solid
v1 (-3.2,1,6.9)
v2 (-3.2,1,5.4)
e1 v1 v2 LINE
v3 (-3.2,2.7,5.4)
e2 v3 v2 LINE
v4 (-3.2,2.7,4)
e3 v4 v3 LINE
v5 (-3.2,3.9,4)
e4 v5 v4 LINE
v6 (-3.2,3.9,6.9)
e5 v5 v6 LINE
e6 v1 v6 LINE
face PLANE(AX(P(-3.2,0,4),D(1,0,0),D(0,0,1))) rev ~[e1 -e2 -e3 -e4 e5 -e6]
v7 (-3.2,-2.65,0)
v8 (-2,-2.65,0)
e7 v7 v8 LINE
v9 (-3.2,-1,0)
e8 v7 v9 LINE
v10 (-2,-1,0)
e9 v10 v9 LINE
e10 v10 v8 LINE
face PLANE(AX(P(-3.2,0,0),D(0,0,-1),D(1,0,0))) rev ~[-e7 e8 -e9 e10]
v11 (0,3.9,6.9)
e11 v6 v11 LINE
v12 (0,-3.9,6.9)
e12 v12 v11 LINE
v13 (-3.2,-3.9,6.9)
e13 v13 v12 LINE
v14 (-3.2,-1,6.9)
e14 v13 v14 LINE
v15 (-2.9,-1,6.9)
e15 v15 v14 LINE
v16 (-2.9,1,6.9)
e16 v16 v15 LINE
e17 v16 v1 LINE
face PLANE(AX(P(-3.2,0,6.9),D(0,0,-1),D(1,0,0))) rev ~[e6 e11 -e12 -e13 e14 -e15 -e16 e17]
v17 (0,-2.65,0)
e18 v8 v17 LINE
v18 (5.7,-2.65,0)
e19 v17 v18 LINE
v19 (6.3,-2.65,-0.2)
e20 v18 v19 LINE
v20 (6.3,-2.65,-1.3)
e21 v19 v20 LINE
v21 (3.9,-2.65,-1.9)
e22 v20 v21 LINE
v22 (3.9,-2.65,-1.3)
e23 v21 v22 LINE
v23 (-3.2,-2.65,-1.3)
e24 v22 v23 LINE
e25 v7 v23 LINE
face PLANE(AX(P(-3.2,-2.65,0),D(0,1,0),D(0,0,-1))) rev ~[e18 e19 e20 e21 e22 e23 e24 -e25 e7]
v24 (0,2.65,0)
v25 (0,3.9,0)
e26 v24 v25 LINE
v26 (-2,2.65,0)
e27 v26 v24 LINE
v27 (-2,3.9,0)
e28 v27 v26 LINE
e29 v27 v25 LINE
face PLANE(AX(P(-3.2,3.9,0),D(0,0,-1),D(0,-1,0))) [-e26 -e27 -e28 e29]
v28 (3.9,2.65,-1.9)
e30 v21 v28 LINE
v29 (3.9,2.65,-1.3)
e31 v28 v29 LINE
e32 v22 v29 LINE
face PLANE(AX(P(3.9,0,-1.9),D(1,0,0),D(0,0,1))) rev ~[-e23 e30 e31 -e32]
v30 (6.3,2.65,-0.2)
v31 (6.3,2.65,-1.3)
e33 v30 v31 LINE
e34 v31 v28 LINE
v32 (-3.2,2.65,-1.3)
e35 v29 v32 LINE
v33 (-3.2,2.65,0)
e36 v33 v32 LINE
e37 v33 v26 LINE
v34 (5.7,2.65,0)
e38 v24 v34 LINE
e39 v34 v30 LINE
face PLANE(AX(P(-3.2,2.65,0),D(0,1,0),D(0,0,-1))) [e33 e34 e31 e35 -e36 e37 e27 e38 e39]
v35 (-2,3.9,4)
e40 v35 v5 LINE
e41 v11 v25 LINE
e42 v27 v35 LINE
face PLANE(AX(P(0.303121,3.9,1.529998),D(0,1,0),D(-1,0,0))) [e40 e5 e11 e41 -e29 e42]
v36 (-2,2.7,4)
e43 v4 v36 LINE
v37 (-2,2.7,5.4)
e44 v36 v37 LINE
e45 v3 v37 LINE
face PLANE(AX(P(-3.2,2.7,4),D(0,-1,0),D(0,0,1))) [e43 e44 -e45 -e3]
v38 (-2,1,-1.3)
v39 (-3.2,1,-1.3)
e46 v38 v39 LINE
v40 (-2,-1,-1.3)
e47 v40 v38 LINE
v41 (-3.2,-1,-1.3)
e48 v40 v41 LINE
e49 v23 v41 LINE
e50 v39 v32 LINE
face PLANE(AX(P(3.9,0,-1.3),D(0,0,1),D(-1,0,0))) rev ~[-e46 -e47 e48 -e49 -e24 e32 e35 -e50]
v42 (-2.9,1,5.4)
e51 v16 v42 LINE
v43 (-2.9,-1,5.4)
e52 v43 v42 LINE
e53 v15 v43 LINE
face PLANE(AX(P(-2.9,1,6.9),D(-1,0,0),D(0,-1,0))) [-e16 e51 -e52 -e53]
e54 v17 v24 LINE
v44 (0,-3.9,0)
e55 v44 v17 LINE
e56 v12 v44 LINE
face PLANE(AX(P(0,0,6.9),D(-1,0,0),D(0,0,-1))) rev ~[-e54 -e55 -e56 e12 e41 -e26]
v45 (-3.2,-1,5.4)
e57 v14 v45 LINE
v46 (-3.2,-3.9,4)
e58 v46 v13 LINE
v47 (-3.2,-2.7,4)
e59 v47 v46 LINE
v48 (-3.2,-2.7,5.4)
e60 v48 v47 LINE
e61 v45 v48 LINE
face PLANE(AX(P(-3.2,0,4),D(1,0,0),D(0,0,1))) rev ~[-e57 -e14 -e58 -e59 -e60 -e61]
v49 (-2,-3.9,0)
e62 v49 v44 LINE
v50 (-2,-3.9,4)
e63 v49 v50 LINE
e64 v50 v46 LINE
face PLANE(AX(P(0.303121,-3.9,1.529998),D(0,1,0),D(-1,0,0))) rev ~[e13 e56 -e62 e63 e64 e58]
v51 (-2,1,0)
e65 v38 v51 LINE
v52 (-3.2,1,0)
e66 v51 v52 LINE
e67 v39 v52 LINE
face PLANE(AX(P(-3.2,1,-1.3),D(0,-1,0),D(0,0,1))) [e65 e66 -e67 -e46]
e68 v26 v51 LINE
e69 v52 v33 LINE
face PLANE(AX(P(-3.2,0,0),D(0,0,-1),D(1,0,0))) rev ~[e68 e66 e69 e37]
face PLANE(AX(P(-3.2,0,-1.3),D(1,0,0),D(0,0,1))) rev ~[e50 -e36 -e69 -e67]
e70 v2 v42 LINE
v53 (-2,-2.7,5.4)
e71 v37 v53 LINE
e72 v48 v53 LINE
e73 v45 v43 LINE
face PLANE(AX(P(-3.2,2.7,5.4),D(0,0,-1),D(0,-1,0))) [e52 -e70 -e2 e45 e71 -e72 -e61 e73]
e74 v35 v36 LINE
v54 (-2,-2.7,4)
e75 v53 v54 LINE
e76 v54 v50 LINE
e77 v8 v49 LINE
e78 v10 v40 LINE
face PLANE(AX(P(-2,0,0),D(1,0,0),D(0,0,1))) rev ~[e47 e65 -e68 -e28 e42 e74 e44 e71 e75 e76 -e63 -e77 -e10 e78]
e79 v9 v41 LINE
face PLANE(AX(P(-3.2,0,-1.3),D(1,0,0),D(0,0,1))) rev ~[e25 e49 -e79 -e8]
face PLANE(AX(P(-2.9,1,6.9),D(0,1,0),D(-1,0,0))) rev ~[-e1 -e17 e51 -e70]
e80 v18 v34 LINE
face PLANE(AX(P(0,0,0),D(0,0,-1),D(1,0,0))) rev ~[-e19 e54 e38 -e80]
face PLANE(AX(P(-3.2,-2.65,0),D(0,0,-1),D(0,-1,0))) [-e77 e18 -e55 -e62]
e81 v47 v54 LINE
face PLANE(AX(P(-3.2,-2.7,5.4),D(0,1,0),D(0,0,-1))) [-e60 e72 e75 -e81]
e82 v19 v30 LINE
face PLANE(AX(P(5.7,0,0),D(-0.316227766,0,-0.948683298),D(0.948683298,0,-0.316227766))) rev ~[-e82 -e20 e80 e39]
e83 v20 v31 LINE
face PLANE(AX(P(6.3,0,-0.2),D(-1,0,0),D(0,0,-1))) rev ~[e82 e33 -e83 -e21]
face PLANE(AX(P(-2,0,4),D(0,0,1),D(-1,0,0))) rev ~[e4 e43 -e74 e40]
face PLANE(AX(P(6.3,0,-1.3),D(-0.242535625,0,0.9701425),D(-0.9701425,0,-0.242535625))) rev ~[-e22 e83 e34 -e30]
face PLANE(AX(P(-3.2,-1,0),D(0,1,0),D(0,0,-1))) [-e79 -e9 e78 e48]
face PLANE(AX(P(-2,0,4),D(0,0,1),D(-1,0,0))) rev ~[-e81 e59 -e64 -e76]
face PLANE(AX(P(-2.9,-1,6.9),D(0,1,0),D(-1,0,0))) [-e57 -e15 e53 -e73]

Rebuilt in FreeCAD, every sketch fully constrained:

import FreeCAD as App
import Part
import Sketcher
from FreeCAD import Vector
Q = App.Units.Quantity

doc = App.newDocument("Part")
body = doc.addObject("PartDesign::Body", "Body")

# Sketch on XZ plane
sketch1 = doc.addObject("Sketcher::SketchObject", "Sketch")
body.addObject(sketch1)
sketch1.AttachmentSupport = (doc.XZ_Plane, [""])
sketch1.MapMode = "FlatFace"
sketch1.addGeometry([
    Part.LineSegment(Vector(-3.2, 6.9, 0), Vector(-3.2, 4, 0)),  # 0
    Part.LineSegment(Vector(-3.2, 4, 0), Vector(-2, 4, 0)),  # 1
    Part.LineSegment(Vector(-2, 4, 0), Vector(-2, 0, 0)),  # 2
    Part.LineSegment(Vector(-2, 0, 0), Vector(-3.2, 0, 0)),  # 3
    Part.LineSegment(Vector(-3.2, 0, 0), Vector(-3.2, -1.3, 0)),  # 4
    Part.LineSegment(Vector(-3.2, -1.3, 0), Vector(3.9, -1.3, 0)),  # 5
    Part.LineSegment(Vector(3.9, -1.3, 0), Vector(3.9, -1.9, 0)),  # 6
    Part.LineSegment(Vector(3.9, -1.9, 0), Vector(6.3, -1.3, 0)),  # 7
    Part.LineSegment(Vector(6.3, -1.3, 0), Vector(6.3, -0.2, 0)),  # 8
    Part.LineSegment(Vector(6.3, -0.2, 0), Vector(5.7, 0, 0)),  # 9
    Part.LineSegment(Vector(5.7, 0, 0), Vector(0, 0, 0)),  # 10
    Part.LineSegment(Vector(0, 0, 0), Vector(0, 6.9, 0)),  # 11
    Part.LineSegment(Vector(0, 6.9, 0), Vector(-3.2, 6.9, 0)),  # 12
], False)
sketch1.addConstraint([
    Sketcher.Constraint("Coincident", 0, 2, 1, 1),
    Sketcher.Constraint("Coincident", 1, 2, 2, 1),
    Sketcher.Constraint("Coincident", 2, 2, 3, 1),
    Sketcher.Constraint("Coincident", 3, 2, 4, 1),
    Sketcher.Constraint("Coincident", 4, 2, 5, 1),
    Sketcher.Constraint("Coincident", 5, 2, 6, 1),
    Sketcher.Constraint("Coincident", 6, 2, 7, 1),
    Sketcher.Constraint("Coincident", 7, 2, 8, 1),
    Sketcher.Constraint("Coincident", 8, 2, 9, 1),
    Sketcher.Constraint("Coincident", 9, 2, 10, 1),
    Sketcher.Constraint("Coincident", 10, 2, 11, 1),
    Sketcher.Constraint("Coincident", 11, 2, 12, 1),
    Sketcher.Constraint("Coincident", 12, 2, 0, 1),
    Sketcher.Constraint("Vertical", 0),
    Sketcher.Constraint("Horizontal", 1),
    Sketcher.Constraint("Vertical", 2),
    Sketcher.Constraint("Horizontal", 3),
    Sketcher.Constraint("Vertical", 4),
    Sketcher.Constraint("Horizontal", 5),
    Sketcher.Constraint("Vertical", 6),
    Sketcher.Constraint("Vertical", 8),
    Sketcher.Constraint("Horizontal", 10),
    Sketcher.Constraint("Vertical", 11),
    Sketcher.Constraint("Horizontal", 12),
    Sketcher.Constraint("Coincident", 10, 2, -1, 1),
    Sketcher.Constraint("PointOnObject", 2, 2, -1),
    Sketcher.Constraint("Horizontal", 5, 2, 7, 2),
    Sketcher.Constraint("Vertical", 0, 2, 3, 2),
    Sketcher.Constraint("DistanceY", 2, 2, 2, 1, Q("4 mm")),
    Sketcher.Constraint("DistanceX", 1, 1, 1, 2, Q("1.2 mm")),
    Sketcher.Constraint("DistanceX", 5, 1, 5, 2, Q("7.1 mm")),
    Sketcher.Constraint("DistanceX", 10, 2, 10, 1, Q("5.7 mm")),
    Sketcher.Constraint("DistanceX", 12, 2, 12, 1, Q("3.2 mm")),
    Sketcher.Constraint("DistanceY", 0, 2, 0, 1, Q("2.9 mm")),
    Sketcher.Constraint("DistanceY", 4, 2, 4, 1, Q("1.3 mm")),
    Sketcher.Constraint("DistanceY", 6, 2, 6, 1, Q("0.6 mm")),
    Sketcher.Constraint("DistanceY", 8, 1, 8, 2, Q("1.1 mm")),
    Sketcher.Constraint("DistanceX", -1, 1, 7, 2, Q("6.3 mm")),
])
pad1 = doc.addObject("PartDesign::Pad", "Pad")
body.addObject(pad1)
pad1.Profile = sketch1
pad1.Length = 7.8
pad1.Midplane = True

# Sketch on YZ plane
sketch2 = doc.addObject("Sketcher::SketchObject", "Sketch001")
body.addObject(sketch2)
sketch2.AttachmentSupport = (doc.YZ_Plane, [""])
sketch2.MapMode = "FlatFace"
sketch2.AttachmentOffset = App.Placement(Vector(0, 0, -3.2), App.Rotation())
sketch2.addGeometry([
    Part.LineSegment(Vector(-3.9, 0, 0), Vector(-2.6, 0, 0)),  # 0
    Part.LineSegment(Vector(-2.6, 0, 0), Vector(-2.6, -2.4, 0)),  # 1
    Part.LineSegment(Vector(-2.6, -2.4, 0), Vector(-3.9, -2.4, 0)),  # 2
    Part.LineSegment(Vector(-3.9, -2.4, 0), Vector(-3.9, 0, 0)),  # 3
    Part.LineSegment(Vector(2.6, 0, 0), Vector(3.9, 0, 0)),  # 4
    Part.LineSegment(Vector(3.9, 0, 0), Vector(3.9, -2.4, 0)),  # 5
    Part.LineSegment(Vector(3.9, -2.4, 0), Vector(2.6, -2.4, 0)),  # 6
    Part.LineSegment(Vector(2.6, -2.4, 0), Vector(2.6, 0, 0)),  # 7
], False)
sketch2.addConstraint([
    Sketcher.Constraint("Coincident", 0, 2, 1, 1),
    Sketcher.Constraint("Coincident", 1, 2, 2, 1),
    Sketcher.Constraint("Coincident", 2, 2, 3, 1),
    Sketcher.Constraint("Coincident", 3, 2, 0, 1),
    Sketcher.Constraint("Coincident", 4, 2, 5, 1),
    Sketcher.Constraint("Coincident", 5, 2, 6, 1),
    Sketcher.Constraint("Coincident", 6, 2, 7, 1),
    Sketcher.Constraint("Coincident", 7, 2, 4, 1),
    Sketcher.Constraint("Horizontal", 0),
    Sketcher.Constraint("Vertical", 1),
    Sketcher.Constraint("Horizontal", 2),
    Sketcher.Constraint("Vertical", 3),
    Sketcher.Constraint("Horizontal", 4),
    Sketcher.Constraint("Vertical", 5),
    Sketcher.Constraint("Horizontal", 6),
    Sketcher.Constraint("Vertical", 7),
    Sketcher.Constraint("Symmetric", 3, 2, 4, 2, -1, 1),
    Sketcher.Constraint("Symmetric", 1, 2, 6, 2, -2),
    Sketcher.Constraint("PointOnObject", 0, 2, -1),
    Sketcher.Constraint("DistanceY", 1, 2, 1, 1, Q("2.4 mm")),
    Sketcher.Constraint("DistanceX", 0, 1, 0, 2, Q("1.25 mm")),
    Sketcher.Constraint("DistanceX", 2, 2, -1, 1, Q("3.9 mm")),
])
pocket1 = doc.addObject("PartDesign::Pocket", "Pocket")
body.addObject(pocket1)
pocket1.Profile = sketch2
pocket1.Type = "ThroughAll"
pocket1.Reversed = True

# Sketch on YZ plane
sketch3 = doc.addObject("Sketcher::SketchObject", "Sketch002")
body.addObject(sketch3)
sketch3.AttachmentSupport = (doc.YZ_Plane, [""])
sketch3.MapMode = "FlatFace"
sketch3.AttachmentOffset = App.Placement(Vector(0, 0, -3.2), App.Rotation())
sketch3.addGeometry([
    Part.LineSegment(Vector(-2.7, 4, 0), Vector(-2.7, 5.4, 0)),  # 0
    Part.LineSegment(Vector(-2.7, 5.4, 0), Vector(2.7, 5.4, 0)),  # 1
    Part.LineSegment(Vector(2.7, 5.4, 0), Vector(2.7, 4, 0)),  # 2
    Part.LineSegment(Vector(2.7, 4, 0), Vector(4.9, 4, 0)),  # 3
    Part.LineSegment(Vector(4.9, 4, 0), Vector(4.9, 0, 0)),  # 4
    Part.LineSegment(Vector(4.9, 0, 0), Vector(1, 0, 0)),  # 5
    Part.LineSegment(Vector(1, 0, 0), Vector(1, -1.3, 0)),  # 6
    Part.LineSegment(Vector(1, -1.3, 0), Vector(-1, -1.3, 0)),  # 7
    Part.LineSegment(Vector(-1, -1.3, 0), Vector(-1, 0, 0)),  # 8
    Part.LineSegment(Vector(-1, 0, 0), Vector(-4.9, 0, 0)),  # 9
    Part.LineSegment(Vector(-4.9, 0, 0), Vector(-4.9, 4, 0)),  # 10
    Part.LineSegment(Vector(-4.9, 4, 0), Vector(-2.7, 4, 0)),  # 11
], False)
sketch3.addConstraint([
    Sketcher.Constraint("Coincident", 0, 2, 1, 1),
    Sketcher.Constraint("Coincident", 1, 2, 2, 1),
    Sketcher.Constraint("Coincident", 2, 2, 3, 1),
    Sketcher.Constraint("Coincident", 3, 2, 4, 1),
    Sketcher.Constraint("Coincident", 4, 2, 5, 1),
    Sketcher.Constraint("Coincident", 5, 2, 6, 1),
    Sketcher.Constraint("Coincident", 6, 2, 7, 1),
    Sketcher.Constraint("Coincident", 7, 2, 8, 1),
    Sketcher.Constraint("Coincident", 8, 2, 9, 1),
    Sketcher.Constraint("Coincident", 9, 2, 10, 1),
    Sketcher.Constraint("Coincident", 10, 2, 11, 1),
    Sketcher.Constraint("Coincident", 11, 2, 0, 1),
    Sketcher.Constraint("Vertical", 0),
    Sketcher.Constraint("Horizontal", 1),
    Sketcher.Constraint("Vertical", 2),
    Sketcher.Constraint("Horizontal", 3),
    Sketcher.Constraint("Vertical", 4),
    Sketcher.Constraint("Horizontal", 5),
    Sketcher.Constraint("Vertical", 6),
    Sketcher.Constraint("Horizontal", 7),
    Sketcher.Constraint("Vertical", 8),
    Sketcher.Constraint("Horizontal", 9),
    Sketcher.Constraint("Vertical", 10),
    Sketcher.Constraint("Horizontal", 11),
    Sketcher.Constraint("Symmetric", 5, 2, 8, 2, -1, 1),
    Sketcher.Constraint("Symmetric", 4, 2, 9, 2, -2),
    Sketcher.Constraint("Symmetric", 2, 2, 11, 2, -2),
    Sketcher.Constraint("DistanceX", 7, 2, 7, 1, Q("2 mm")),
    Sketcher.Constraint("DistanceY", 4, 2, 4, 1, Q("4 mm")),
    Sketcher.Constraint("DistanceX", 1, 1, 1, 2, Q("5.4 mm")),
    Sketcher.Constraint("DistanceX", 3, 1, 3, 2, Q("2.2 mm")),
    Sketcher.Constraint("DistanceY", 0, 1, 0, 2, Q("1.4 mm")),
    Sketcher.Constraint("DistanceY", 6, 2, 6, 1, Q("1.3 mm")),
])
pocket2 = doc.addObject("PartDesign::Pocket", "Pocket001")
body.addObject(pocket2)
pocket2.Profile = sketch3
pocket2.Length = 1.2
pocket2.Reversed = True

# Sketch on XY plane
sketch4 = doc.addObject("Sketcher::SketchObject", "Sketch003")
body.addObject(sketch4)
sketch4.AttachmentSupport = (doc.XY_Plane, [""])
sketch4.MapMode = "FlatFace"
sketch4.AttachmentOffset = App.Placement(Vector(0, 0, 6.9), App.Rotation())
sketch4.addGeometry([
    Part.LineSegment(Vector(-2.9, -1, 0), Vector(-2.9, 1, 0)),
    Part.LineSegment(Vector(-2.9, 1, 0), Vector(-3.2, 1, 0)),
    Part.LineSegment(Vector(-3.2, 1, 0), Vector(-3.2, -1, 0)),
    Part.LineSegment(Vector(-3.2, -1, 0), Vector(-2.9, -1, 0)),
], False)
sketch4.addConstraint([
    Sketcher.Constraint("Coincident", 0, 2, 1, 1),
    Sketcher.Constraint("Coincident", 1, 2, 2, 1),
    Sketcher.Constraint("Coincident", 2, 2, 3, 1),
    Sketcher.Constraint("Coincident", 3, 2, 0, 1),
    Sketcher.Constraint("Vertical", 0),
    Sketcher.Constraint("Horizontal", 1),
    Sketcher.Constraint("Vertical", 2),
    Sketcher.Constraint("Horizontal", 3),
    Sketcher.Constraint("DistanceY", 0, 1, 0, 2, Q("2 mm")),
    Sketcher.Constraint("DistanceX", 1, 2, 1, 1, Q("0.3 mm")),
    Sketcher.Constraint("DistanceY", -1, 1, 0, 2, Q("1 mm")),
    Sketcher.Constraint("DistanceX", 0, 2, -1, 1, Q("2.9 mm")),
])
pocket3 = doc.addObject("PartDesign::Pocket", "Pocket002")
body.addObject(pocket3)
pocket3.Profile = sketch4
pocket3.Type = "ThroughAll"

doc.recompute()
